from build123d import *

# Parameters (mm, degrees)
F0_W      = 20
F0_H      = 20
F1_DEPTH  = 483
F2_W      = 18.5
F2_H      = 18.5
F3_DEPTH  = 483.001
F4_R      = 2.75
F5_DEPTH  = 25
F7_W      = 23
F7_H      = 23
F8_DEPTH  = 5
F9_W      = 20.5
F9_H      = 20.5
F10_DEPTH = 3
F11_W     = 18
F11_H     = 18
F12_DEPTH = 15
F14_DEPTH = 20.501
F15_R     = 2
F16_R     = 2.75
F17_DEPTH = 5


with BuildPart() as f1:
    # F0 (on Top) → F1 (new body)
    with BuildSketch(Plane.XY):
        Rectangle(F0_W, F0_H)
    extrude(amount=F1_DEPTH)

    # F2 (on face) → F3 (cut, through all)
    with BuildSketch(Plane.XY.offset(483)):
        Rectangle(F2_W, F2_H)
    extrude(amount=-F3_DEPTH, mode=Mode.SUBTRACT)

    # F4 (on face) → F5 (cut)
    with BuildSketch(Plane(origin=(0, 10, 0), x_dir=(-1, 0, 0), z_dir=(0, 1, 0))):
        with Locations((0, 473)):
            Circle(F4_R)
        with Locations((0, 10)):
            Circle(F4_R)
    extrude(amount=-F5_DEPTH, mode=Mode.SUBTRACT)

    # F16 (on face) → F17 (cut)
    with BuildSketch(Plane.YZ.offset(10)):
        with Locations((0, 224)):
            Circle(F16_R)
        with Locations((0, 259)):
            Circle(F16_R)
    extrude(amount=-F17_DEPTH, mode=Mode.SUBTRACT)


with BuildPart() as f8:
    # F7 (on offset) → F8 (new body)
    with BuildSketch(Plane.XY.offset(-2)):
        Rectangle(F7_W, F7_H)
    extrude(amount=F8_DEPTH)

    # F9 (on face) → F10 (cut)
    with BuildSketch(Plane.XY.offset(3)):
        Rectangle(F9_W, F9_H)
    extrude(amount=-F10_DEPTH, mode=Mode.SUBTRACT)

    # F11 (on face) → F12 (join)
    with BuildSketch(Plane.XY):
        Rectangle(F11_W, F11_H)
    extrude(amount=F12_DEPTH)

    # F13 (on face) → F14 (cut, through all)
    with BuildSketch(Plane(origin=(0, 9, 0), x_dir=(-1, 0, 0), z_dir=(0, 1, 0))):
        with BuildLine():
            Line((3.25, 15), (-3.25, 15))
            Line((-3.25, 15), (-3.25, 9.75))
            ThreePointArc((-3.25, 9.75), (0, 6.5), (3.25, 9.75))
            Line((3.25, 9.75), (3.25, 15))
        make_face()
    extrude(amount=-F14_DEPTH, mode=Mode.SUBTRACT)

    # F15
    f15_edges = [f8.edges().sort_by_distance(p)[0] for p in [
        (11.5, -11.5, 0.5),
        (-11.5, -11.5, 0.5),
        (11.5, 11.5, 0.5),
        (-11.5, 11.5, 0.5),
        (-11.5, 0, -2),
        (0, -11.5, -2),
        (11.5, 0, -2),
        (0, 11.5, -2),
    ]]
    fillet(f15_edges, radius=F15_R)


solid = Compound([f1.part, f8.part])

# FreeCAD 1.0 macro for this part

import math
import FreeCAD as App
import Part
import Sketcher
from FreeCAD import Vector
Q = App.Units.Quantity


def edges_at(feature, points):
    """Names of the edges that pass closest to the given points."""
    edges = feature.Shape.Edges
    near = lambda p: min(range(len(edges)), key=lambda i: edges[i].distToShape(Part.Vertex(*p))[0])
    return sorted({f"Edge{near(p) + 1}" for p in points})


def add_polygon(sketch, points):
    """Adds a closed chain of lines whose ends are joined by coincident constraints."""
    first, n = sketch.GeometryCount, len(points)
    for a, b in zip(points, points[1:] + points[:1]):
        sketch.addGeometry(Part.LineSegment(App.Vector(*a, 0), App.Vector(*b, 0)), False)
    for i in range(n):
        sketch.addConstraint(Sketcher.Constraint("Coincident", first + i, 2, first + (i + 1) % n, 1))

doc = App.newDocument("Part")
params = doc.addObject("Spreadsheet::Sheet", "Params")
for row, (alias, value) in enumerate([
    ("sketch1_width", "20 mm"),
    ("pad1_length", "483 mm"),
    ("sketch2_width", "18.5 mm"),
    ("sketch3_diameter", "5.5 mm"),
    ("pocket2_length", "25 mm"),
    ("sketch4_diameter", "5.5 mm"),
    ("pocket3_length", "5 mm"),
    ("sketch5_width", "23 mm"),
    ("pad2_length", "5 mm"),
    ("sketch6_width", "20.5 mm"),
    ("pocket4_length", "3 mm"),
    ("sketch7_width", "18 mm"),
    ("pad3_length", "15 mm"),
    ("sketch8_radius", "3.25 mm"),
    ("sketch8_height", "5.25 mm"),
    ("fillet_radius", "2 mm"),
], start=1):
    params.set(f"A{row}", alias)
    params.set(f"B{row}", "=" + value)
    params.setAlias(f"B{row}", alias)

body = doc.addObject("PartDesign::Body", "Body")

# Sketch on XY plane
sketch1 = body.newObject("Sketcher::SketchObject", "Sketch")
sketch1.AttachmentSupport = (doc.getObject("XY_Plane"), [""])
sketch1.MapMode = "FlatFace"
add_polygon(sketch1, [(-10, 10), (-10, -10), (10, -10), (10, 10)])  # lines 0-3
sketch1.addConstraint([
    Sketcher.Constraint("Vertical", 0),
    Sketcher.Constraint("Horizontal", 1),
    Sketcher.Constraint("Vertical", 2),
    Sketcher.Constraint("Horizontal", 3),
    Sketcher.Constraint("Symmetric", 0, 2, 2, 2, -1, 1),
    Sketcher.Constraint("Equal", 3, 0),
    Sketcher.Constraint("DistanceX", 1, 1, 1, 2, Q("20 mm")),
])
sketch1.setExpression("Constraints[10]", "Params.sketch1_width")
pad1 = body.newObject("PartDesign::Pad", "Pad")
pad1.Profile = sketch1
pad1.setExpression("Length", "Params.pad1_length")

# Sketch on XY plane
sketch2 = body.newObject("Sketcher::SketchObject", "Sketch001")
sketch2.AttachmentSupport = (doc.getObject("XY_Plane"), [""])
sketch2.MapMode = "FlatFace"
sketch2.AttachmentOffset = App.Placement(Vector(0, 0, 483), App.Rotation())
add_polygon(sketch2, [(-9, 9), (-9, -9), (9, -9), (9, 9)])  # lines 0-3
sketch2.addConstraint([
    Sketcher.Constraint("Vertical", 0),
    Sketcher.Constraint("Horizontal", 1),
    Sketcher.Constraint("Vertical", 2),
    Sketcher.Constraint("Horizontal", 3),
    Sketcher.Constraint("Symmetric", 0, 2, 2, 2, -1, 1),
    Sketcher.Constraint("Equal", 3, 0),
    Sketcher.Constraint("DistanceX", 1, 1, 1, 2, Q("18.5 mm")),
])
sketch2.setExpression("Constraints[10]", "Params.sketch2_width")
pocket1 = body.newObject("PartDesign::Pocket", "Pocket")
pocket1.Profile = sketch2
pocket1.Type = "ThroughAll"

# Sketch on XZ plane
sketch3 = body.newObject("Sketcher::SketchObject", "Sketch002")
sketch3.AttachmentSupport = (doc.getObject("XZ_Plane"), [""])
sketch3.MapMode = "FlatFace"
sketch3.AttachmentOffset = App.Placement(Vector(0, 0, -10), App.Rotation())
sketch3.addGeometry([
    Part.Circle(Vector(0, 473, 0), Vector(0, 0, 1), 2.8),
    Part.Circle(Vector(0, 10, 0), Vector(0, 0, 1), 2.8),
], False)
sketch3.addConstraint([
    Sketcher.Constraint("Equal", 0, 1),
    Sketcher.Constraint("PointOnObject", 0, 3, -2),
    Sketcher.Constraint("PointOnObject", 1, 3, -2),
    Sketcher.Constraint("Diameter", 0, Q("5.5 mm")),
    Sketcher.Constraint("DistanceY", -1, 1, 0, 3, Q("473 mm")),
    Sketcher.Constraint("DistanceY", -1, 1, 1, 3, Q("10 mm")),
])
sketch3.setExpression("Constraints[3]", "Params.sketch3_diameter")
pocket2 = body.newObject("PartDesign::Pocket", "Pocket001")
pocket2.Profile = sketch3
pocket2.setExpression("Length", "Params.pocket2_length")
pocket2.Reversed = True

# Sketch on YZ plane
sketch4 = body.newObject("Sketcher::SketchObject", "Sketch003")
sketch4.AttachmentSupport = (doc.getObject("YZ_Plane"), [""])
sketch4.MapMode = "FlatFace"
sketch4.AttachmentOffset = App.Placement(Vector(0, 0, 10), App.Rotation())
sketch4.addGeometry([
    Part.Circle(Vector(0, 224, 0), Vector(0, 0, 1), 2.8),
    Part.Circle(Vector(0, 259, 0), Vector(0, 0, 1), 2.8),
], False)
sketch4.addConstraint([
    Sketcher.Constraint("Equal", 0, 1),
    Sketcher.Constraint("PointOnObject", 0, 3, -2),
    Sketcher.Constraint("PointOnObject", 1, 3, -2),
    Sketcher.Constraint("Diameter", 0, Q("5.5 mm")),
    Sketcher.Constraint("DistanceY", -1, 1, 0, 3, Q("224 mm")),
    Sketcher.Constraint("DistanceY", -1, 1, 1, 3, Q("259 mm")),
])
sketch4.setExpression("Constraints[3]", "Params.sketch4_diameter")
pocket3 = body.newObject("PartDesign::Pocket", "Pocket002")
pocket3.Profile = sketch4
pocket3.setExpression("Length", "Params.pocket3_length")
body2 = doc.addObject("PartDesign::Body", "Body001")

# Sketch on XY plane
sketch5 = body2.newObject("Sketcher::SketchObject", "Sketch004")
sketch5.AttachmentSupport = (doc.getObject("XY_Plane001"), [""])
sketch5.MapMode = "FlatFace"
sketch5.AttachmentOffset = App.Placement(Vector(0, 0, -2), App.Rotation())
add_polygon(sketch5, [(-12, 12), (-12, -12), (12, -12), (12, 12)])  # lines 0-3
sketch5.addConstraint([
    Sketcher.Constraint("Vertical", 0),
    Sketcher.Constraint("Horizontal", 1),
    Sketcher.Constraint("Vertical", 2),
    Sketcher.Constraint("Horizontal", 3),
    Sketcher.Constraint("Symmetric", 0, 2, 2, 2, -1, 1),
    Sketcher.Constraint("Equal", 3, 0),
    Sketcher.Constraint("DistanceX", 1, 1, 1, 2, Q("23 mm")),
])
sketch5.setExpression("Constraints[10]", "Params.sketch5_width")
pad2 = body2.newObject("PartDesign::Pad", "Pad001")
pad2.Profile = sketch5
pad2.setExpression("Length", "Params.pad2_length")

# Sketch on XY plane
sketch6 = body2.newObject("Sketcher::SketchObject", "Sketch005")
sketch6.AttachmentSupport = (doc.getObject("XY_Plane001"), [""])
sketch6.MapMode = "FlatFace"
sketch6.AttachmentOffset = App.Placement(Vector(0, 0, 3), App.Rotation())
add_polygon(sketch6, [(-10, 10), (-10, -10), (10, -10), (10, 10)])  # lines 0-3
sketch6.addConstraint([
    Sketcher.Constraint("Vertical", 0),
    Sketcher.Constraint("Horizontal", 1),
    Sketcher.Constraint("Vertical", 2),
    Sketcher.Constraint("Horizontal", 3),
    Sketcher.Constraint("Symmetric", 0, 2, 2, 2, -1, 1),
    Sketcher.Constraint("Equal", 3, 0),
    Sketcher.Constraint("DistanceX", 1, 1, 1, 2, Q("20.5 mm")),
])
sketch6.setExpression("Constraints[10]", "Params.sketch6_width")
pocket4 = body2.newObject("PartDesign::Pocket", "Pocket003")
pocket4.Profile = sketch6
pocket4.setExpression("Length", "Params.pocket4_length")

# Sketch on XY plane
sketch7 = body2.newObject("Sketcher::SketchObject", "Sketch006")
sketch7.AttachmentSupport = (doc.getObject("XY_Plane001"), [""])
sketch7.MapMode = "FlatFace"
add_polygon(sketch7, [(-9, 9), (-9, -9), (9, -9), (9, 9)])  # lines 0-3
sketch7.addConstraint([
    Sketcher.Constraint("Vertical", 0),
    Sketcher.Constraint("Horizontal", 1),
    Sketcher.Constraint("Vertical", 2),
    Sketcher.Constraint("Horizontal", 3),
    Sketcher.Constraint("Symmetric", 0, 2, 2, 2, -1, 1),
    Sketcher.Constraint("Equal", 3, 0),
    Sketcher.Constraint("DistanceX", 1, 1, 1, 2, Q("18 mm")),
])
sketch7.setExpression("Constraints[10]", "Params.sketch7_width")
pad3 = body2.newObject("PartDesign::Pad", "Pad002")
pad3.Profile = sketch7
pad3.setExpression("Length", "Params.pad3_length")

# Sketch on XZ plane
sketch8 = body2.newObject("Sketcher::SketchObject", "Sketch007")
sketch8.AttachmentSupport = (doc.getObject("XZ_Plane001"), [""])
sketch8.MapMode = "FlatFace"
sketch8.AttachmentOffset = App.Placement(Vector(0, 0, -9), App.Rotation())
sketch8.addGeometry([
    Part.LineSegment(Vector(-3.2, 15, 0), Vector(3.2, 15, 0)),
    Part.LineSegment(Vector(3.2, 15, 0), Vector(3.2, 9.8, 0)),
    Part.ArcOfCircle(Part.Circle(Vector(0, 9.8, 0), Vector(0, 0, 1), 3.2), math.radians(180), math.radians(360)),
    Part.LineSegment(Vector(-3.2, 9.8, 0), Vector(-3.2, 15, 0)),
], False)
sketch8.addConstraint([
    Sketcher.Constraint("Coincident", 0, 2, 1, 1),
    Sketcher.Constraint("Tangent", 1, 2, 2, 2),
    Sketcher.Constraint("Tangent", 2, 1, 3, 1),
    Sketcher.Constraint("Coincident", 3, 2, 0, 1),
    Sketcher.Constraint("Horizontal", 0),
    Sketcher.Constraint("Vertical", 1),
    Sketcher.Constraint("Vertical", 3),
    Sketcher.Constraint("PointOnObject", 2, 3, -2),
    Sketcher.Constraint("Radius", 2, Q("3.25 mm")),
    Sketcher.Constraint("DistanceY", -1, 1, 0, 2, Q("15 mm")),
    Sketcher.Constraint("DistanceY", 1, 2, 1, 1, Q("5.25 mm")),
])
sketch8.setExpression("Constraints[8]", "Params.sketch8_radius")
sketch8.setExpression("Constraints[10]", "Params.sketch8_height")
pocket5 = body2.newObject("PartDesign::Pocket", "Pocket004")
pocket5.Profile = sketch8
pocket5.Type = "ThroughAll"
pocket5.Reversed = True
doc.recompute()

fillet = body2.newObject("PartDesign::Fillet", "Fillet")
fillet.Base = (pocket5, edges_at(pocket5, [
    (11.5, -11.5, 0.5),
    (-11.5, -11.5, 0.5),
    (11.5, 11.5, 0.5),
    (-11.5, 11.5, 0.5),
    (-11.5, 0, -2),
    (0, -11.5, -2),
    (11.5, 0, -2),
    (0, 11.5, -2),
]))
fillet.setExpression("Radius", "Params.fillet_radius")

doc.recompute()
